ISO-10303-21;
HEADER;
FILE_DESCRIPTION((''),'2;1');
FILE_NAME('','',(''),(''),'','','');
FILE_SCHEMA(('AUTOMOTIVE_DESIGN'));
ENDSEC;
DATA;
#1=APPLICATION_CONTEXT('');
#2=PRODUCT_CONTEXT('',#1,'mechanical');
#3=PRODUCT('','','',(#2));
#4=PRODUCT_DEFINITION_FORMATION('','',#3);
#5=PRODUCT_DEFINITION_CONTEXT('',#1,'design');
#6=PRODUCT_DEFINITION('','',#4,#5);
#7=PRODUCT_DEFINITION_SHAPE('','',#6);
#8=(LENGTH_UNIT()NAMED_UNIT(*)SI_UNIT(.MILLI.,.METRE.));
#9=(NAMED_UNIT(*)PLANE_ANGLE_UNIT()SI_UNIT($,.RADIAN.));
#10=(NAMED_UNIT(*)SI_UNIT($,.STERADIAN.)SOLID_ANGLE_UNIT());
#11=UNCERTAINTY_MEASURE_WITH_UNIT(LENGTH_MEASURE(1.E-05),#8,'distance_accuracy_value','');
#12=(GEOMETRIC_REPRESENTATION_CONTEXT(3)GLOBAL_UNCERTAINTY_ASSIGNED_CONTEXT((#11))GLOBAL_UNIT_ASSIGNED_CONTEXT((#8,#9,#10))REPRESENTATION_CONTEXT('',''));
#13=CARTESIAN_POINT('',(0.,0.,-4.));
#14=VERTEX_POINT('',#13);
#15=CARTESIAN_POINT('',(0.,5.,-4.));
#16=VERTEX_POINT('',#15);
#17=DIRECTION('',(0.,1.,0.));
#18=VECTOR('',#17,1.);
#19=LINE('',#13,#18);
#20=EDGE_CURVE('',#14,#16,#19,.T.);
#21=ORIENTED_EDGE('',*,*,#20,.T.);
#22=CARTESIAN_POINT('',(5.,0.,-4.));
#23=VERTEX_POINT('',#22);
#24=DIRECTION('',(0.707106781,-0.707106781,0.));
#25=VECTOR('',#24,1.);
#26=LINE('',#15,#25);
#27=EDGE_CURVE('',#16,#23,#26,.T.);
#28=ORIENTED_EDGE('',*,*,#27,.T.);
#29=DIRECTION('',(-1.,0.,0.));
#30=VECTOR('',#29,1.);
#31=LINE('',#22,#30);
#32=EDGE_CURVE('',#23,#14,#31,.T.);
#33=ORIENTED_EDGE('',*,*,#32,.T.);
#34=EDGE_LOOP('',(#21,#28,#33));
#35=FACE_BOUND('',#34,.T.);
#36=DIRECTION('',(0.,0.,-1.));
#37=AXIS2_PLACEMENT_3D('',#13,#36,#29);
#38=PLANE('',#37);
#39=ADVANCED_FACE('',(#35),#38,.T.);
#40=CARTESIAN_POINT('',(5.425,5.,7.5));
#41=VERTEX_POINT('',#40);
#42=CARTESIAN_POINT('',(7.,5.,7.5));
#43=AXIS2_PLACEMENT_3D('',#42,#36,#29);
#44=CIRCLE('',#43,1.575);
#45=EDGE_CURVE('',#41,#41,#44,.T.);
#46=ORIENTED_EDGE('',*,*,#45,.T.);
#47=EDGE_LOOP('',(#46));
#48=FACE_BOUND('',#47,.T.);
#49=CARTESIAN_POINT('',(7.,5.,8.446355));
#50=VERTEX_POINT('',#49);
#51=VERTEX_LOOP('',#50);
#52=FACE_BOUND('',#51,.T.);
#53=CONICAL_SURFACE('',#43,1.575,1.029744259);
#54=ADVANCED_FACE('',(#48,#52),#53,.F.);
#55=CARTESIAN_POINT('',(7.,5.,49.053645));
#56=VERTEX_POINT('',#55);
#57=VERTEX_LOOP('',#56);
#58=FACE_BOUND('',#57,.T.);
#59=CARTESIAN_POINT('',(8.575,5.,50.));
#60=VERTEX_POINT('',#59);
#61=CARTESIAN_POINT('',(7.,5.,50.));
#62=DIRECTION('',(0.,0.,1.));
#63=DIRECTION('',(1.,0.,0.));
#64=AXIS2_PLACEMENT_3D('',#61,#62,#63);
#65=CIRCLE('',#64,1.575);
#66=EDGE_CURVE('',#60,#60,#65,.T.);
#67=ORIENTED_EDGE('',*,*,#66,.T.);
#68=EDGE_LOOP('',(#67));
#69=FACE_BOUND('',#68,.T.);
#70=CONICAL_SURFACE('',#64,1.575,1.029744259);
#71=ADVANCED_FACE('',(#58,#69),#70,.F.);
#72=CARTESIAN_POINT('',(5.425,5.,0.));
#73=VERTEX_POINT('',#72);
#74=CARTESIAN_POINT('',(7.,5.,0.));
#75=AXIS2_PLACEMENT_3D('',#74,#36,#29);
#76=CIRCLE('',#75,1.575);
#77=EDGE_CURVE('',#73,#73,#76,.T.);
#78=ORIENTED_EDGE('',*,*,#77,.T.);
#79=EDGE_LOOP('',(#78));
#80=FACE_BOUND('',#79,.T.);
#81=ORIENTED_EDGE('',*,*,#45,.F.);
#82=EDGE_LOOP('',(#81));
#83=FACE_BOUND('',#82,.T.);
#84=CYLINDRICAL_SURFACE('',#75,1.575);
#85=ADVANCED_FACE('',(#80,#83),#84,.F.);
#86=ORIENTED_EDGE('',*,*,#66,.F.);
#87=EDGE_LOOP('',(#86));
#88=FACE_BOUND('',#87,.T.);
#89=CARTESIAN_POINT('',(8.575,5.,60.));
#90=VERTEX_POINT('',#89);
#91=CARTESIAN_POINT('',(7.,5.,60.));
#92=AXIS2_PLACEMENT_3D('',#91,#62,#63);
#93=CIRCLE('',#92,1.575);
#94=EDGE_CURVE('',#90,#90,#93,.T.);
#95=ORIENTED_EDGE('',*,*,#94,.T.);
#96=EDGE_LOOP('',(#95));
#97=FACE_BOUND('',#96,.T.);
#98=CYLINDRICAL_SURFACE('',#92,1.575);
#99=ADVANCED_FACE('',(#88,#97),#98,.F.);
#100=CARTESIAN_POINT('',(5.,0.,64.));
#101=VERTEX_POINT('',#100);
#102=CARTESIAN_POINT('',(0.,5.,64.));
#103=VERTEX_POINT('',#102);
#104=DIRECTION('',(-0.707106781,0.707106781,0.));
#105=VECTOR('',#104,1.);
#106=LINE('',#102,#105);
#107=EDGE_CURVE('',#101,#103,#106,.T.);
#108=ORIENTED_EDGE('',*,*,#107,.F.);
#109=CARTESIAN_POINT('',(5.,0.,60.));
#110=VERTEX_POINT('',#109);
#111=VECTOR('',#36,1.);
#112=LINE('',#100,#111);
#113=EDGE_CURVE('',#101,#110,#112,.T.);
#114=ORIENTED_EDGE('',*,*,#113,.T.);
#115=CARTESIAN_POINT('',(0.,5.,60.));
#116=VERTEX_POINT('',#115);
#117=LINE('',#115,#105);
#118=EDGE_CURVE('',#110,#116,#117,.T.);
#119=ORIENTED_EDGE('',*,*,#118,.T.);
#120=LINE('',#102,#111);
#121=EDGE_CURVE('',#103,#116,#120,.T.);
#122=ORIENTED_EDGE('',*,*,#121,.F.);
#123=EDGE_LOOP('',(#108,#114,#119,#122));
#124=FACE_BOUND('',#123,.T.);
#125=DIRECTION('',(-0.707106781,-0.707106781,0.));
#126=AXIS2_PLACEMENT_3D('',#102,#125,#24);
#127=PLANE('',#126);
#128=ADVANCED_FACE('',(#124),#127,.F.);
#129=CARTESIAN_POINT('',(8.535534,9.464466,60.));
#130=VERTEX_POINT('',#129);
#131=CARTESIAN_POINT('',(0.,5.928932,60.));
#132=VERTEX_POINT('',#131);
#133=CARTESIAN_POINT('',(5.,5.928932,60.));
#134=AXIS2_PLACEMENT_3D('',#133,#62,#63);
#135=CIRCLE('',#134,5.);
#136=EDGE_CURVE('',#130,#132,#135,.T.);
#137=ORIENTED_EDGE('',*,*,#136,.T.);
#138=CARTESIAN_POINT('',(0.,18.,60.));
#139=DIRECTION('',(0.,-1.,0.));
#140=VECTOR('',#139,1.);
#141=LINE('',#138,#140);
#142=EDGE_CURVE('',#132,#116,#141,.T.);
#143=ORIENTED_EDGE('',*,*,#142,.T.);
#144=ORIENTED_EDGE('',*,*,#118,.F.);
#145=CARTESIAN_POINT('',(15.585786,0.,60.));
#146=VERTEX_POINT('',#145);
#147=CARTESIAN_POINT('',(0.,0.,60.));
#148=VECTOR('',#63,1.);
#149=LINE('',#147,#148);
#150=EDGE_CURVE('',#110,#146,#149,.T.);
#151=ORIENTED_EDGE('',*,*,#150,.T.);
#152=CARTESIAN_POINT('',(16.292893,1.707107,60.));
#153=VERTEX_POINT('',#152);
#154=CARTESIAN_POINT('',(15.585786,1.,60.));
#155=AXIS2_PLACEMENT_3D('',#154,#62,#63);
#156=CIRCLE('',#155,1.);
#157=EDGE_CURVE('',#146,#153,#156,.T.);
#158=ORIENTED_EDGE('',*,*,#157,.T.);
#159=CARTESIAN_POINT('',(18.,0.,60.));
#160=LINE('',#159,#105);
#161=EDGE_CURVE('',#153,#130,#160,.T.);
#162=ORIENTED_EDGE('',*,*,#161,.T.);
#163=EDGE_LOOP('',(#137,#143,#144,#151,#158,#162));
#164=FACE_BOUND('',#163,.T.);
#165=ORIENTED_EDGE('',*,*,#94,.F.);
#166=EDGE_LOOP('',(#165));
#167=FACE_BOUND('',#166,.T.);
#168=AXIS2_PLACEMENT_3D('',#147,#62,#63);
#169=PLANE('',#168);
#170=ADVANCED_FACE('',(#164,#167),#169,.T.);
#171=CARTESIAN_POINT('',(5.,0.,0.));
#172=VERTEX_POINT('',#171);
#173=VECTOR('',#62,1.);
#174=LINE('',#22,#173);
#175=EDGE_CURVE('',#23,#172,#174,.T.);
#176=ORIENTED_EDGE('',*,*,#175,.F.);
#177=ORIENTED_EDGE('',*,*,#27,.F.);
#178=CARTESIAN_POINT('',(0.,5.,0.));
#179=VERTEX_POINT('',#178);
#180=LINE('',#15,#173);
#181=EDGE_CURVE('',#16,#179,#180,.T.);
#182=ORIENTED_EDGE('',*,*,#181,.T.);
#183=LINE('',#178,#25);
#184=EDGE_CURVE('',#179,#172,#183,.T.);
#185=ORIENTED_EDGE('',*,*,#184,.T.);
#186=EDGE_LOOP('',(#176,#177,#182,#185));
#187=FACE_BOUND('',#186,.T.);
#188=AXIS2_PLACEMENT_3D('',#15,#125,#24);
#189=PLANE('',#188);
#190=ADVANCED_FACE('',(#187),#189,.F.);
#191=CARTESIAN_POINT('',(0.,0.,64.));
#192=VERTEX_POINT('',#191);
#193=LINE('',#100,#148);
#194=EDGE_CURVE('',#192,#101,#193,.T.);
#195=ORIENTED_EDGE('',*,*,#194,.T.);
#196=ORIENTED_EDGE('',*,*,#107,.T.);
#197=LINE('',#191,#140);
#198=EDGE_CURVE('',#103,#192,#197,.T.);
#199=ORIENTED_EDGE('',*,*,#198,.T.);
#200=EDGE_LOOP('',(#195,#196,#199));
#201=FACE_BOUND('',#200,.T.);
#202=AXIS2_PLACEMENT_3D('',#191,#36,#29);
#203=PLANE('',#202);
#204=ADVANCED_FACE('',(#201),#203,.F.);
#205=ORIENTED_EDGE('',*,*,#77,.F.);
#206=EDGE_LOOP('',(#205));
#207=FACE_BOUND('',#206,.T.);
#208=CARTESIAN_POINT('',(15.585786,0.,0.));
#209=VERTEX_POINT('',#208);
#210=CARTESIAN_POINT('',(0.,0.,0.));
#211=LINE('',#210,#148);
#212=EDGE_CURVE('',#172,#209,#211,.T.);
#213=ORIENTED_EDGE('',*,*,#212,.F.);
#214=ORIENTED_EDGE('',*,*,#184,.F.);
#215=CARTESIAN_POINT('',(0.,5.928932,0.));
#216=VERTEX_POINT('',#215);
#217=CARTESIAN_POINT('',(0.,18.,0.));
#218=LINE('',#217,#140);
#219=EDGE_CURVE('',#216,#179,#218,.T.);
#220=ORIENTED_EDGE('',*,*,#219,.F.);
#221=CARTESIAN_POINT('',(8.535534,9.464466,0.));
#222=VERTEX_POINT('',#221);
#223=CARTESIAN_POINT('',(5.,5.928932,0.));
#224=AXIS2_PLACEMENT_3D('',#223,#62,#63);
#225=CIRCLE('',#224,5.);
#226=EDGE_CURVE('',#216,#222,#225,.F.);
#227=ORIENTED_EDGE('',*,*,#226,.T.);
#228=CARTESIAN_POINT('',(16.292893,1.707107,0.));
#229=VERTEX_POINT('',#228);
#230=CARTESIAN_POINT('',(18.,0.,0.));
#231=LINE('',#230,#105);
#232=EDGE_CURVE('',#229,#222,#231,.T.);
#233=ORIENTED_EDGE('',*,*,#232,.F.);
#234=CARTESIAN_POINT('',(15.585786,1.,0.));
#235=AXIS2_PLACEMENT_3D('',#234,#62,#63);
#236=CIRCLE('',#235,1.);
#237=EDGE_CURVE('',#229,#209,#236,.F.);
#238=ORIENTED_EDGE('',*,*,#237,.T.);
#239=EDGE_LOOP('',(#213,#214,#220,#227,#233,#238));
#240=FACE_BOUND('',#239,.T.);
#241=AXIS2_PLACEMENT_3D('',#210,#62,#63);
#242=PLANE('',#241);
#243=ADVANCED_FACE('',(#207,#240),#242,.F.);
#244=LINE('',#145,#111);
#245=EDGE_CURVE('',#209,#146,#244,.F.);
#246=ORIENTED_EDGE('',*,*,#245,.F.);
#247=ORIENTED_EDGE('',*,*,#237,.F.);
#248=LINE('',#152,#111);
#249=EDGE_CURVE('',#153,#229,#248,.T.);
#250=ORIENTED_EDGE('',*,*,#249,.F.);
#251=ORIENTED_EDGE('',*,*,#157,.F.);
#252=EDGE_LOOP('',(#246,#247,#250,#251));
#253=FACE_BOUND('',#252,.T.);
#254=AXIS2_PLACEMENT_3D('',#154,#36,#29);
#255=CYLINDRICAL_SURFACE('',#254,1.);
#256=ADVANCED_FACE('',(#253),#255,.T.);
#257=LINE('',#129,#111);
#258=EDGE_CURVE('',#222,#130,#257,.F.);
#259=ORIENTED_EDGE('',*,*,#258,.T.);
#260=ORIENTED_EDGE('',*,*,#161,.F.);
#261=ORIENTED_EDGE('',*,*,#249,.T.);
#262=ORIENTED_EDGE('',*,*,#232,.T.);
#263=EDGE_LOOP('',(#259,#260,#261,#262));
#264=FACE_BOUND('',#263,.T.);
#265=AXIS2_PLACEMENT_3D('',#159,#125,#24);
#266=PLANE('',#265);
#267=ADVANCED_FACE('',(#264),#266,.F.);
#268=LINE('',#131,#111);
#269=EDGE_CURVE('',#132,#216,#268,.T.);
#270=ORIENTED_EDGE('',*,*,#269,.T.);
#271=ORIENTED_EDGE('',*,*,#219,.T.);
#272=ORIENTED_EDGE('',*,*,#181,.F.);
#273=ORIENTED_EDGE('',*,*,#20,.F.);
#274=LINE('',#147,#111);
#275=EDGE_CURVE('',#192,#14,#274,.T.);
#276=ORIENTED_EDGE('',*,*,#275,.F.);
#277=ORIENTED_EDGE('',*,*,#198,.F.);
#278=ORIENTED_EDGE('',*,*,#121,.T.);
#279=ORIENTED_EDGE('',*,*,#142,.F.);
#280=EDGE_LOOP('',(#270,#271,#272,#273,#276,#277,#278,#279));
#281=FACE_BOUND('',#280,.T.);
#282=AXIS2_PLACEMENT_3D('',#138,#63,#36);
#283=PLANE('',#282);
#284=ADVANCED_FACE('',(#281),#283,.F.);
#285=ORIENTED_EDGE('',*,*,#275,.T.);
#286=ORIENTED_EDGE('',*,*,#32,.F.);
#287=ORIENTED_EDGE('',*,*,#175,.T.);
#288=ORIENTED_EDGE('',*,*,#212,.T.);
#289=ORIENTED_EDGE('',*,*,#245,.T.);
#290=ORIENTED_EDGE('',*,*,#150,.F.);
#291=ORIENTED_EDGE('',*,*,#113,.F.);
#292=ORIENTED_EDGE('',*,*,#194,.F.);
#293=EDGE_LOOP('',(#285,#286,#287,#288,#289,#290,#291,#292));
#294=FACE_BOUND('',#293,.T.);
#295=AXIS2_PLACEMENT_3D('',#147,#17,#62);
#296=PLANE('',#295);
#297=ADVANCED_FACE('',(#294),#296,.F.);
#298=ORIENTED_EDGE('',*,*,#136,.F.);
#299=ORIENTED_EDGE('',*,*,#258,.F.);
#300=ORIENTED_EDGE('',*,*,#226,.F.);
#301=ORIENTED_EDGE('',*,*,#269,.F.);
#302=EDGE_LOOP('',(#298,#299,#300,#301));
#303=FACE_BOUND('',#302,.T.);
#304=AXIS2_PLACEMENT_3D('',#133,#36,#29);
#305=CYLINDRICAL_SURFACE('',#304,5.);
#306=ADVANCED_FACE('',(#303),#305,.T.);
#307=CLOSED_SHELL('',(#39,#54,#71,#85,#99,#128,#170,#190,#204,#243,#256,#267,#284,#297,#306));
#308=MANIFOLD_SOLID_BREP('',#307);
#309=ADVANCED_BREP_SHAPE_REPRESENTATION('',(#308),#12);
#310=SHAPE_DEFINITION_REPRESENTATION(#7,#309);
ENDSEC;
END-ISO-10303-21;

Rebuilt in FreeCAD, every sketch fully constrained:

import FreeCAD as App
import Part
import Sketcher

V = App.Vector


def edges_at(feature, points):
    """Names of the edges that pass closest to the given points."""
    edges = feature.Shape.Edges
    near = lambda p: min(range(len(edges)), key=lambda i: edges[i].distToShape(Part.Vertex(*p))[0])
    return sorted({f"Edge{near(p) + 1}" for p in points})

doc = App.newDocument("Part")
body = doc.addObject("PartDesign::Body", "Body")

sketch1 = doc.addObject("Sketcher::SketchObject", "Sketch")
body.addObject(sketch1)
sketch1.AttachmentSupport = (doc.XY_Plane, [""])
sketch1.MapMode = "FlatFace"
sketch1.addGeometry([
    Part.LineSegment(V(0, 0, 0), V(18, 0, 0)),
    Part.LineSegment(V(18, 0, 0), V(0, 18, 0)),
    Part.LineSegment(V(0, 18, 0), V(0, 0, 0)),
], False)
sketch1.addConstraint([
    Sketcher.Constraint("Coincident", 0, 2, 1, 1),
    Sketcher.Constraint("Coincident", 1, 2, 2, 1),
    Sketcher.Constraint("Coincident", 2, 2, 0, 1),
    Sketcher.Constraint("Horizontal", 0),
    Sketcher.Constraint("Vertical", 2),
    Sketcher.Constraint("Coincident", 2, 2, -1, 1),
    Sketcher.Constraint("Equal", 0, 2),
    Sketcher.Constraint("DistanceX", 0, 1, 0, 2, 18.0),
])
pad1 = doc.addObject("PartDesign::Pad", "Pad")
body.addObject(pad1)
pad1.Profile = sketch1
pad1.Length = 60

sketch2 = doc.addObject("Sketcher::SketchObject", "Sketch001")
body.addObject(sketch2)
sketch2.AttachmentSupport = (doc.XY_Plane, [""])
sketch2.MapMode = "FlatFace"
sketch2.AttachmentOffset = App.Placement(V(0, 0, 60), App.Rotation())
sketch2.addGeometry([
    Part.LineSegment(V(0, 5, 0), V(0, 0, 0)),
    Part.LineSegment(V(0, 0, 0), V(5, 0, 0)),
    Part.LineSegment(V(5, 0, 0), V(0, 5, 0)),
], False)
sketch2.addConstraint([
    Sketcher.Constraint("Coincident", 0, 2, 1, 1),
    Sketcher.Constraint("Coincident", 1, 2, 2, 1),
    Sketcher.Constraint("Coincident", 2, 2, 0, 1),
    Sketcher.Constraint("Vertical", 0),
    Sketcher.Constraint("Horizontal", 1),
    Sketcher.Constraint("Coincident", 0, 2, -1, 1),
    Sketcher.Constraint("Equal", 1, 0),
    Sketcher.Constraint("DistanceX", 1, 1, 1, 2, 5.0),
])
pad2 = doc.addObject("PartDesign::Pad", "Pad001")
body.addObject(pad2)
pad2.Profile = sketch2
pad2.Length = 4

sketch3 = doc.addObject("Sketcher::SketchObject", "Sketch002")
body.addObject(sketch3)
sketch3.AttachmentSupport = (doc.XY_Plane, [""])
sketch3.MapMode = "FlatFace"
sketch3.addGeometry([
    Part.LineSegment(V(0, 0, 0), V(0, 5, 0)),
    Part.LineSegment(V(0, 5, 0), V(5, 0, 0)),
    Part.LineSegment(V(5, 0, 0), V(0, 0, 0)),
], False)
sketch3.addConstraint([
    Sketcher.Constraint("Coincident", 0, 2, 1, 1),
    Sketcher.Constraint("Coincident", 1, 2, 2, 1),
    Sketcher.Constraint("Coincident", 2, 2, 0, 1),
    Sketcher.Constraint("Vertical", 0),
    Sketcher.Constraint("Horizontal", 2),
    Sketcher.Constraint("Coincident", 2, 2, -1, 1),
    Sketcher.Constraint("Equal", 2, 0),
    Sketcher.Constraint("DistanceX", 2, 2, 2, 1, 5.0),
])
pad3 = doc.addObject("PartDesign::Pad", "Pad002")
body.addObject(pad3)
pad3.Profile = sketch3
pad3.Length = 4
pad3.Reversed = True

sketch4 = doc.addObject("Sketcher::SketchObject", "Sketch003")
body.addObject(sketch4)
sketch4.AttachmentSupport = (doc.XY_Plane, [""])
sketch4.MapMode = "FlatFace"
sketch4.AttachmentOffset = App.Placement(V(0, 0, 60), App.Rotation())
sketch4.addGeometry(Part.Circle(V(7, 5, 0), V(0, 0, 1), 1.6), False)
sketch4.addConstraint([
    Sketcher.Constraint("Diameter", 0, 3.15),
    Sketcher.Constraint("DistanceX", -1, 1, 0, 3, 7.0),
    Sketcher.Constraint("DistanceY", -1, 1, 0, 3, 5.0),
])
doc.recompute()
hole = doc.addObject("PartDesign::Hole", "Hole")
body.addObject(hole)
hole.Profile = sketch4
hole.ThreadType = "None"
hole.Diameter = 3.15
hole.DepthType = "Dimension"
hole.Depth = 10
hole.DrillPoint = "Angled"
hole.DrillPointAngle = 118

sketch5 = doc.addObject("Sketcher::SketchObject", "Sketch004")
body.addObject(sketch5)
sketch5.AttachmentSupport = (doc.XY_Plane, [""])
sketch5.MapMode = "FlatFace"
sketch5.addGeometry(Part.Circle(V(7, 5, 0), V(0, 0, 1), 1.6), False)
sketch5.addConstraint([
    Sketcher.Constraint("Diameter", 0, 3.15),
    Sketcher.Constraint("DistanceX", -1, 1, 0, 3, 7.0),
    Sketcher.Constraint("DistanceY", -1, 1, 0, 3, 5.0),
])
doc.recompute()
hole2 = doc.addObject("PartDesign::Hole", "Hole001")
body.addObject(hole2)
hole2.Profile = sketch5
hole2.ThreadType = "None"
hole2.Diameter = 3.15
hole2.DepthType = "Dimension"
hole2.Depth = 7.5
hole2.DrillPoint = "Angled"
hole2.DrillPointAngle = 118
hole2.Reversed = True
doc.recompute()

fillet = doc.addObject("PartDesign::Fillet", "Fillet")
body.addObject(fillet)
fillet.Base = (hole2, edges_at(hole2, [(18, 0, 30)]))
fillet.Radius = 1
doc.recompute()

fillet2 = doc.addObject("PartDesign::Fillet", "Fillet001")
body.addObject(fillet2)
fillet2.Base = (fillet, edges_at(fillet, [(0, 18, 30)]))
fillet2.Radius = 5

doc.recompute()
